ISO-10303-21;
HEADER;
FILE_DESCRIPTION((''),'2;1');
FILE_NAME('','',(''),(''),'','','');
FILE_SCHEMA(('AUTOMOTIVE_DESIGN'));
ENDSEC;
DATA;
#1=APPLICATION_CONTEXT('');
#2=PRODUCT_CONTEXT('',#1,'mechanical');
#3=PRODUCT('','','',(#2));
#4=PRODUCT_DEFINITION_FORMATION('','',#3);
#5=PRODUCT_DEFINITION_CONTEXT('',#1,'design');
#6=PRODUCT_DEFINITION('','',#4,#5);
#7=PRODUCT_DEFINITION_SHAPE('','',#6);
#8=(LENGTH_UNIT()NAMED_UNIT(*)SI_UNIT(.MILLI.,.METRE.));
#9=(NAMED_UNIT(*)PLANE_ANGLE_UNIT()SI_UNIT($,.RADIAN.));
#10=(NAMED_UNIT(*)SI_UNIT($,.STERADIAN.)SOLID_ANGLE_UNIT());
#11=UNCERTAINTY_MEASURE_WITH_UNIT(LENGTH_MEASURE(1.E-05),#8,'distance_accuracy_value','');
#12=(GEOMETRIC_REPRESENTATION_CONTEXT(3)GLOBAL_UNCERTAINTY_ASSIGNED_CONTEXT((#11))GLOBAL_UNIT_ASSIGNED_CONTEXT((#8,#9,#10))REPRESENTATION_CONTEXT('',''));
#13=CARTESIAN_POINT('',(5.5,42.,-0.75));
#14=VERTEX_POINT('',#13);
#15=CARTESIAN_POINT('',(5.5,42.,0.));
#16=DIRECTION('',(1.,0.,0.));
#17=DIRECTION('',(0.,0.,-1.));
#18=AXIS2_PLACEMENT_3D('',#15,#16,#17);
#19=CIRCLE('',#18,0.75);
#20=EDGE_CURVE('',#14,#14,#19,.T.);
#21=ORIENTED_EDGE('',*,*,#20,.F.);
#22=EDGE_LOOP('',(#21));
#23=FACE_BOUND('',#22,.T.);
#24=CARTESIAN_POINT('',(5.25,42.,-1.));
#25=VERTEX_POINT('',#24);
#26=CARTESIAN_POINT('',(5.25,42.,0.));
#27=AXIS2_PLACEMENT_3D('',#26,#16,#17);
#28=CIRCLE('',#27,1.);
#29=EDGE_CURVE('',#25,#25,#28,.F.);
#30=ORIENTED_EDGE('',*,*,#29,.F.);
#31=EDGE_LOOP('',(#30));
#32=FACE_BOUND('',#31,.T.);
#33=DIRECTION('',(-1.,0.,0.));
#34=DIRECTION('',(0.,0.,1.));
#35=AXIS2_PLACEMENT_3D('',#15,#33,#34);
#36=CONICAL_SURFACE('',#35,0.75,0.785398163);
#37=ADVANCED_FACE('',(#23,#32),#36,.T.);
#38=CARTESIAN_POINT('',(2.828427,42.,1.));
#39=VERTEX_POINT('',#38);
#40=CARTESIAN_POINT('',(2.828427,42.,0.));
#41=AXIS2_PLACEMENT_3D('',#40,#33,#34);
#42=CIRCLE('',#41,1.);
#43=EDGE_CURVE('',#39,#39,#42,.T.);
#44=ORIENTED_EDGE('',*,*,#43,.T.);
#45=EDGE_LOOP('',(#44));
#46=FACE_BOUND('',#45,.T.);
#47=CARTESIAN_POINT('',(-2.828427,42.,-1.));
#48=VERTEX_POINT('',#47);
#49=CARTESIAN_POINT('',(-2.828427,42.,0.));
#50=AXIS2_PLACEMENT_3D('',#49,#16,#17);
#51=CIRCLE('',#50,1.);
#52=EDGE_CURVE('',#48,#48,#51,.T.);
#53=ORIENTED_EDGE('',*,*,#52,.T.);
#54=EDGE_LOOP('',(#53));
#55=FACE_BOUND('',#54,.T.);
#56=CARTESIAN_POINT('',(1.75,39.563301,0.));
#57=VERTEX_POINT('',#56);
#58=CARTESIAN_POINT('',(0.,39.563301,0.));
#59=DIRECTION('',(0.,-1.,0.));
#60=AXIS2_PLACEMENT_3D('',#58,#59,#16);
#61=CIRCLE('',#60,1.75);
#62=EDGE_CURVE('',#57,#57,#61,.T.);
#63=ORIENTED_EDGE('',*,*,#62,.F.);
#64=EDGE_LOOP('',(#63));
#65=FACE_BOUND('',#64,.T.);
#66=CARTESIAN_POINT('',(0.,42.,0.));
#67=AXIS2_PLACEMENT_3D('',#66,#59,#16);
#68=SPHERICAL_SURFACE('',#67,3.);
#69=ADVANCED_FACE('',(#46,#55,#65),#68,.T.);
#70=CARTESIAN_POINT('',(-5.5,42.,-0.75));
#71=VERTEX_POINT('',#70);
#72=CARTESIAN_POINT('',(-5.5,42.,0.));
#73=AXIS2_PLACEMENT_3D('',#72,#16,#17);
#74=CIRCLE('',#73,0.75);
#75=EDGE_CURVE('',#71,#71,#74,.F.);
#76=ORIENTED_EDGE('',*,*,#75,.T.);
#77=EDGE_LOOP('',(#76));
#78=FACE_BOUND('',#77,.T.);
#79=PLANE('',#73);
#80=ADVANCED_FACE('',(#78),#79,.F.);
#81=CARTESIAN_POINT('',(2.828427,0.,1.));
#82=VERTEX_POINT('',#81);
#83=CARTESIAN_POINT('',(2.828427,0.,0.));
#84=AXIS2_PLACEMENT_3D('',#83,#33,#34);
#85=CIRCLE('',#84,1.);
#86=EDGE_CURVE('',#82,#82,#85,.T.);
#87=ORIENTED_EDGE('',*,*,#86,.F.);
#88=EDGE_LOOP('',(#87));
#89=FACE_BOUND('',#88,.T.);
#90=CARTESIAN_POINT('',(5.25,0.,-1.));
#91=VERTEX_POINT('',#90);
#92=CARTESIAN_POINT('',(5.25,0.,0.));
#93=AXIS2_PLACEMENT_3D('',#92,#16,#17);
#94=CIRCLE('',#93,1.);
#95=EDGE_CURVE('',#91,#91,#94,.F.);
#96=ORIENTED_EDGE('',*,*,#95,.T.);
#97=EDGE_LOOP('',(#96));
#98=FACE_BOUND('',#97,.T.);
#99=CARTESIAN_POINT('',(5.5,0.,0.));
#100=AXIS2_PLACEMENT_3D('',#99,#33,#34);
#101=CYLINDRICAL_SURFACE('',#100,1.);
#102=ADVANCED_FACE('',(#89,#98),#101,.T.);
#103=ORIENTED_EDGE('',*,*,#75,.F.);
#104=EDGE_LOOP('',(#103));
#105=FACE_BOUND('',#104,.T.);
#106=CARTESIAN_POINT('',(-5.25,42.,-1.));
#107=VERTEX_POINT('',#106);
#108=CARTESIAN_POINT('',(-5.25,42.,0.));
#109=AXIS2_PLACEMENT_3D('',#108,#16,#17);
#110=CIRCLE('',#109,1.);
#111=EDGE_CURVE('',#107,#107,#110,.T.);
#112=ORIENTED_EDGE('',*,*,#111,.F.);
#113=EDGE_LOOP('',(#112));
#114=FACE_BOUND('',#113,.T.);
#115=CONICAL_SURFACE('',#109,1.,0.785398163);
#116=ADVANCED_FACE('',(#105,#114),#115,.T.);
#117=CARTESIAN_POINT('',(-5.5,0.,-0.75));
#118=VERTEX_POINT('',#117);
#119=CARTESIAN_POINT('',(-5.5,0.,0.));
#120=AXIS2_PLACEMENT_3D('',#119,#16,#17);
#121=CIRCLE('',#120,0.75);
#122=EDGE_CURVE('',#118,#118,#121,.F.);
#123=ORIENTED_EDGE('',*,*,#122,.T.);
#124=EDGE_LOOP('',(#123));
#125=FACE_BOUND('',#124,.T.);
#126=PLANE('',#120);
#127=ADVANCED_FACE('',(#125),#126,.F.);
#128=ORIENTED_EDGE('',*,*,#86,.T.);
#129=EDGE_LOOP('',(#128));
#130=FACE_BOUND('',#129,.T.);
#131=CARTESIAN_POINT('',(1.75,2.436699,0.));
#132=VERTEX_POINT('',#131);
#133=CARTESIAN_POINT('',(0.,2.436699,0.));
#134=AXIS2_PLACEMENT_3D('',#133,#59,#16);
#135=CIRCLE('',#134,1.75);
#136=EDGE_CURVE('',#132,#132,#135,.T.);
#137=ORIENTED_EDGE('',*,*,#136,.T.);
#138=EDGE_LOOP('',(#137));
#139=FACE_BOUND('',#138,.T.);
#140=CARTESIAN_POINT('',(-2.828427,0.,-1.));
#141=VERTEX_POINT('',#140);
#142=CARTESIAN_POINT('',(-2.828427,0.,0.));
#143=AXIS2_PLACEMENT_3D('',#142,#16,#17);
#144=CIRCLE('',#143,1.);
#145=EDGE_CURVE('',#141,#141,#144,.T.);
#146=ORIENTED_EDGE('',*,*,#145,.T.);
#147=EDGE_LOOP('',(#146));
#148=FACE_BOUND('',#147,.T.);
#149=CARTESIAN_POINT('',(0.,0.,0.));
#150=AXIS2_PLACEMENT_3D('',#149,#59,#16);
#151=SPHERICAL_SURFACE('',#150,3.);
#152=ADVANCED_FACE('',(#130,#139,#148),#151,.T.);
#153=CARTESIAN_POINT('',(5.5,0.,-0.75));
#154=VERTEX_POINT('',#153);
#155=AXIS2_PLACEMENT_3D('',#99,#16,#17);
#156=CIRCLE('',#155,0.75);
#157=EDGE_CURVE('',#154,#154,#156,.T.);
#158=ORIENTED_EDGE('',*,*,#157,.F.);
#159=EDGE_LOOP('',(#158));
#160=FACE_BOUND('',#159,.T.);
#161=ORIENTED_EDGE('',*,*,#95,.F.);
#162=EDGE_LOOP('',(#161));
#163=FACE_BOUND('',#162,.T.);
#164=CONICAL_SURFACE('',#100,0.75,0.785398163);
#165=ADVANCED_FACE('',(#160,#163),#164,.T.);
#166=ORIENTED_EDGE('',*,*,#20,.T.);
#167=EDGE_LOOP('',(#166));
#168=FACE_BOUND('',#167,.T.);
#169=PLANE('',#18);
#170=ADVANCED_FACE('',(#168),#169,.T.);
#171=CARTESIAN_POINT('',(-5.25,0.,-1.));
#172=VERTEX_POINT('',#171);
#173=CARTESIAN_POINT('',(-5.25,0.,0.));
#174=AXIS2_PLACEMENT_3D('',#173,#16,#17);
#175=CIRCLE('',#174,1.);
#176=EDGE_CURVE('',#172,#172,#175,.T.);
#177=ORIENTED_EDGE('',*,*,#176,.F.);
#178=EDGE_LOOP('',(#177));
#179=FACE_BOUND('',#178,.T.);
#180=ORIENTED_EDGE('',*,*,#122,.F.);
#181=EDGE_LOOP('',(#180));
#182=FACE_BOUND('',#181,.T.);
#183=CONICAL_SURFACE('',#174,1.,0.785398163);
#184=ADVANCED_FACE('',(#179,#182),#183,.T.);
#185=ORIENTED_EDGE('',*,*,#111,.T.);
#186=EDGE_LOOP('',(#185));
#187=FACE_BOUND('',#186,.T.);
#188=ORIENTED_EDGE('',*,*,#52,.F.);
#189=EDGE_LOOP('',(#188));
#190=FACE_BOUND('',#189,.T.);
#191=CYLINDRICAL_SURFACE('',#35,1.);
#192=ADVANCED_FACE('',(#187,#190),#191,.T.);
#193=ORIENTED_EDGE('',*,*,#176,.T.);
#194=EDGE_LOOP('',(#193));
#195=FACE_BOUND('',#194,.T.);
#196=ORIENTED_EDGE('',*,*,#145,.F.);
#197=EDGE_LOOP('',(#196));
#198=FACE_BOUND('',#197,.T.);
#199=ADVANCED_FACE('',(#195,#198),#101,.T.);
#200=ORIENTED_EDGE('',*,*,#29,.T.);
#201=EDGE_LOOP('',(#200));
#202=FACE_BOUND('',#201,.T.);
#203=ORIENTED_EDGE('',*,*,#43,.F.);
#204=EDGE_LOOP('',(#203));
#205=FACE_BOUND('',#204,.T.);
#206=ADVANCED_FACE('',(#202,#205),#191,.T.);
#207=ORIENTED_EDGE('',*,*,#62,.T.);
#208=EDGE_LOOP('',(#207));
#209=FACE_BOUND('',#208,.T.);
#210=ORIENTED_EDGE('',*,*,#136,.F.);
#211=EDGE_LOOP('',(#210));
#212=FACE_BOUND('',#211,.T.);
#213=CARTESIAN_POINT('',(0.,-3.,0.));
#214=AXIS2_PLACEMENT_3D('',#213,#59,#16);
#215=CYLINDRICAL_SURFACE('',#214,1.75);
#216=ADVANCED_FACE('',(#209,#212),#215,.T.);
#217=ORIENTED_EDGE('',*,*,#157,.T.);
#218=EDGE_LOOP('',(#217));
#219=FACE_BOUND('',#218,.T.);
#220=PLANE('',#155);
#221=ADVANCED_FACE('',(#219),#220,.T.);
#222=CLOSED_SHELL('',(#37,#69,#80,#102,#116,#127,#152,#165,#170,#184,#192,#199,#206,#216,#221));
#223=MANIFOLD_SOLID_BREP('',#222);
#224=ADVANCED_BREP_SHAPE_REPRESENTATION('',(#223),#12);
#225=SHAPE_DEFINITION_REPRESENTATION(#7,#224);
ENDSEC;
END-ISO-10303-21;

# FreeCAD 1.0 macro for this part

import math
import FreeCAD as App
import Part
import Sketcher
from FreeCAD import Vector


def edges_at(feature, points):
    """Names of the edges that pass closest to the given points."""
    edges = feature.Shape.Edges
    near = lambda p: min(range(len(edges)), key=lambda i: edges[i].distToShape(Part.Vertex(*p))[0])
    return sorted({f"Edge{near(p) + 1}" for p in points})

doc = App.newDocument("Part")
body = doc.addObject("PartDesign::Body", "Body")

# Sketch on XY plane
sketch1 = doc.addObject("Sketcher::SketchObject", "Sketch")
body.addObject(sketch1)
sketch1.AttachmentSupport = (doc.XY_Plane, [""])
sketch1.MapMode = "FlatFace"
sketch1.addGeometry([
    Part.LineSegment(Vector(1.75, 2.436699, 0), Vector(1.75, 39.563301, 0)),
    Part.ArcOfCircle(Part.Circle(Vector(0, 42, 0), Vector(0, 0, 1), 3), math.radians(-54.314665), math.radians(90)),
    Part.LineSegment(Vector(0, 45, 0), Vector(0, -3, 0)),
    Part.ArcOfCircle(Part.Circle(Vector(0, 0, 0), Vector(0, 0, 1), 3), math.radians(-90), math.radians(54.314665)),
], False)
sketch1.addConstraint([
    Sketcher.Constraint("Coincident", 0, 2, 1, 1),
    Sketcher.Constraint("Coincident", 1, 2, 2, 1),
    Sketcher.Constraint("Coincident", 2, 2, 3, 1),
    Sketcher.Constraint("Coincident", 3, 2, 0, 1),
    Sketcher.Constraint("Vertical", 0),
    Sketcher.Constraint("Vertical", 2),
    Sketcher.Constraint("Coincident", 3, 3, -1, 1),
    Sketcher.Constraint("Equal", 1, 3),
    Sketcher.Constraint("PointOnObject", 1, 3, -2),
    Sketcher.Constraint("PointOnObject", 1, 2, -2),
    Sketcher.Constraint("Radius", 1, 3.0),
    Sketcher.Constraint("DistanceY", 2, 2, 2, 1, 48.0),
    Sketcher.Constraint("DistanceX", -1, 1, 0, 2, 1.75),
])
revolution = doc.addObject("PartDesign::Revolution", "Revolution")
body.addObject(revolution)
revolution.Profile = sketch1
revolution.ReferenceAxis = (sketch1, ["V_Axis"])
revolution.Angle = 360

# Sketch on YZ plane
sketch2 = doc.addObject("Sketcher::SketchObject", "Sketch001")
body.addObject(sketch2)
sketch2.AttachmentSupport = (doc.YZ_Plane, [""])
sketch2.MapMode = "FlatFace"
sketch2.addGeometry([
    Part.Circle(Vector(0, 0, 0), Vector(0, 0, 1), 1),
    Part.Circle(Vector(42, 0, 0), Vector(0, 0, 1), 1),
], False)
sketch2.addConstraint([
    Sketcher.Constraint("Coincident", 0, 3, -1, 1),
    Sketcher.Constraint("Equal", 0, 1),
    Sketcher.Constraint("PointOnObject", 1, 3, -1),
    Sketcher.Constraint("Diameter", 0, 2.0),
    Sketcher.Constraint("DistanceX", -1, 1, 1, 3, 42.0),
])
pad1 = doc.addObject("PartDesign::Pad", "Pad")
body.addObject(pad1)
pad1.Profile = sketch2
pad1.Length = 11
pad1.Midplane = True
doc.recompute()

chamfer = doc.addObject("PartDesign::Chamfer", "Chamfer")
body.addObject(chamfer)
chamfer.Base = (pad1, edges_at(pad1, [
    (5.5, 42, 1),
    (-5.5, 42, 1),
    (5.5, 0, 1),
    (-5.5, 0, 1),
]))
chamfer.Size = 0.25

doc.recompute()
